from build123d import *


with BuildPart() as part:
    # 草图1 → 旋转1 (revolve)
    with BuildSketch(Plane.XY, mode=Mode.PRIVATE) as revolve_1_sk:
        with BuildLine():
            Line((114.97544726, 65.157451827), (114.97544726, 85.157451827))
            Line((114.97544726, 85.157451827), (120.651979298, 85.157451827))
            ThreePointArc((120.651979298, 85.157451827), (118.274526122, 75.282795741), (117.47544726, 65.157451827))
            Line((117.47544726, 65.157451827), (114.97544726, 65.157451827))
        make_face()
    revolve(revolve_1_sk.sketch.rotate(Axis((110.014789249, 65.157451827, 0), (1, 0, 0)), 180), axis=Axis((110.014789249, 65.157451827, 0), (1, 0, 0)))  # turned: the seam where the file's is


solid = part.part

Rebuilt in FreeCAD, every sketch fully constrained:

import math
import FreeCAD as App
import Part
import Sketcher

V = App.Vector
Q = App.Units.Quantity

doc = App.newDocument("Part")
body = doc.addObject("PartDesign::Body", "Body")

sketch1 = body.newObject("Sketcher::SketchObject", "Sketch")
sketch1.AttachmentSupport = (doc.getObject("XY_Plane"), [""])
sketch1.MapMode = "FlatFace"
sketch1.addGeometry([
    Part.LineSegment(V(114.975447, 85.157452, 0), V(114.975447, 65.157452, 0)),
    Part.LineSegment(V(114.975447, 65.157452, 0), V(117.475447, 65.157452, 0)),
    Part.ArcOfCircle(Part.Circle(V(182.025447, 65.157454, 0), V(0, 0, 1), 64.55), math.radians(161.950574), math.radians(180.000002)),
    Part.LineSegment(V(120.651979, 85.157452, 0), V(114.975447, 85.157452, 0)),
], False)
sketch1.addGeometry(Part.LineSegment(V(114.975447, 65.157452, 0), V(182.025447, 65.157452, 0)), True)
sketch1.addConstraint([
    Sketcher.Constraint("Coincident", 0, 2, 1, 1),
    Sketcher.Constraint("Coincident", 1, 2, 2, 2),
    Sketcher.Constraint("Coincident", 2, 1, 3, 1),
    Sketcher.Constraint("Coincident", 3, 2, 0, 1),
    Sketcher.Constraint("Vertical", 0),
    Sketcher.Constraint("Horizontal", 1),
    Sketcher.Constraint("Horizontal", 3),
    Sketcher.Constraint("Horizontal", 4),
    Sketcher.Constraint("Coincident", 4, 1, 0, 2),
    Sketcher.Constraint("Coincident", 4, 2, 2, 3),
    Sketcher.Constraint("DistanceY", 0, 2, 0, 1, Q("20 mm")),
    Sketcher.Constraint("Radius", 2, Q("64.55 mm")),
    Sketcher.Constraint("DistanceX", 1, 1, 1, 2, Q("2.5 mm")),
    Sketcher.Constraint("DistanceY", -1, 1, 0, 2, Q("65.157452 mm")),
    Sketcher.Constraint("DistanceX", -1, 1, 2, 1, Q("120.651979 mm")),
])
revolution = body.newObject("PartDesign::Revolution", "Revolution")
revolution.Profile = sketch1
revolution.ReferenceAxis = (sketch1, ["Axis0"])
revolution.Angle = 360

doc.recompute()
